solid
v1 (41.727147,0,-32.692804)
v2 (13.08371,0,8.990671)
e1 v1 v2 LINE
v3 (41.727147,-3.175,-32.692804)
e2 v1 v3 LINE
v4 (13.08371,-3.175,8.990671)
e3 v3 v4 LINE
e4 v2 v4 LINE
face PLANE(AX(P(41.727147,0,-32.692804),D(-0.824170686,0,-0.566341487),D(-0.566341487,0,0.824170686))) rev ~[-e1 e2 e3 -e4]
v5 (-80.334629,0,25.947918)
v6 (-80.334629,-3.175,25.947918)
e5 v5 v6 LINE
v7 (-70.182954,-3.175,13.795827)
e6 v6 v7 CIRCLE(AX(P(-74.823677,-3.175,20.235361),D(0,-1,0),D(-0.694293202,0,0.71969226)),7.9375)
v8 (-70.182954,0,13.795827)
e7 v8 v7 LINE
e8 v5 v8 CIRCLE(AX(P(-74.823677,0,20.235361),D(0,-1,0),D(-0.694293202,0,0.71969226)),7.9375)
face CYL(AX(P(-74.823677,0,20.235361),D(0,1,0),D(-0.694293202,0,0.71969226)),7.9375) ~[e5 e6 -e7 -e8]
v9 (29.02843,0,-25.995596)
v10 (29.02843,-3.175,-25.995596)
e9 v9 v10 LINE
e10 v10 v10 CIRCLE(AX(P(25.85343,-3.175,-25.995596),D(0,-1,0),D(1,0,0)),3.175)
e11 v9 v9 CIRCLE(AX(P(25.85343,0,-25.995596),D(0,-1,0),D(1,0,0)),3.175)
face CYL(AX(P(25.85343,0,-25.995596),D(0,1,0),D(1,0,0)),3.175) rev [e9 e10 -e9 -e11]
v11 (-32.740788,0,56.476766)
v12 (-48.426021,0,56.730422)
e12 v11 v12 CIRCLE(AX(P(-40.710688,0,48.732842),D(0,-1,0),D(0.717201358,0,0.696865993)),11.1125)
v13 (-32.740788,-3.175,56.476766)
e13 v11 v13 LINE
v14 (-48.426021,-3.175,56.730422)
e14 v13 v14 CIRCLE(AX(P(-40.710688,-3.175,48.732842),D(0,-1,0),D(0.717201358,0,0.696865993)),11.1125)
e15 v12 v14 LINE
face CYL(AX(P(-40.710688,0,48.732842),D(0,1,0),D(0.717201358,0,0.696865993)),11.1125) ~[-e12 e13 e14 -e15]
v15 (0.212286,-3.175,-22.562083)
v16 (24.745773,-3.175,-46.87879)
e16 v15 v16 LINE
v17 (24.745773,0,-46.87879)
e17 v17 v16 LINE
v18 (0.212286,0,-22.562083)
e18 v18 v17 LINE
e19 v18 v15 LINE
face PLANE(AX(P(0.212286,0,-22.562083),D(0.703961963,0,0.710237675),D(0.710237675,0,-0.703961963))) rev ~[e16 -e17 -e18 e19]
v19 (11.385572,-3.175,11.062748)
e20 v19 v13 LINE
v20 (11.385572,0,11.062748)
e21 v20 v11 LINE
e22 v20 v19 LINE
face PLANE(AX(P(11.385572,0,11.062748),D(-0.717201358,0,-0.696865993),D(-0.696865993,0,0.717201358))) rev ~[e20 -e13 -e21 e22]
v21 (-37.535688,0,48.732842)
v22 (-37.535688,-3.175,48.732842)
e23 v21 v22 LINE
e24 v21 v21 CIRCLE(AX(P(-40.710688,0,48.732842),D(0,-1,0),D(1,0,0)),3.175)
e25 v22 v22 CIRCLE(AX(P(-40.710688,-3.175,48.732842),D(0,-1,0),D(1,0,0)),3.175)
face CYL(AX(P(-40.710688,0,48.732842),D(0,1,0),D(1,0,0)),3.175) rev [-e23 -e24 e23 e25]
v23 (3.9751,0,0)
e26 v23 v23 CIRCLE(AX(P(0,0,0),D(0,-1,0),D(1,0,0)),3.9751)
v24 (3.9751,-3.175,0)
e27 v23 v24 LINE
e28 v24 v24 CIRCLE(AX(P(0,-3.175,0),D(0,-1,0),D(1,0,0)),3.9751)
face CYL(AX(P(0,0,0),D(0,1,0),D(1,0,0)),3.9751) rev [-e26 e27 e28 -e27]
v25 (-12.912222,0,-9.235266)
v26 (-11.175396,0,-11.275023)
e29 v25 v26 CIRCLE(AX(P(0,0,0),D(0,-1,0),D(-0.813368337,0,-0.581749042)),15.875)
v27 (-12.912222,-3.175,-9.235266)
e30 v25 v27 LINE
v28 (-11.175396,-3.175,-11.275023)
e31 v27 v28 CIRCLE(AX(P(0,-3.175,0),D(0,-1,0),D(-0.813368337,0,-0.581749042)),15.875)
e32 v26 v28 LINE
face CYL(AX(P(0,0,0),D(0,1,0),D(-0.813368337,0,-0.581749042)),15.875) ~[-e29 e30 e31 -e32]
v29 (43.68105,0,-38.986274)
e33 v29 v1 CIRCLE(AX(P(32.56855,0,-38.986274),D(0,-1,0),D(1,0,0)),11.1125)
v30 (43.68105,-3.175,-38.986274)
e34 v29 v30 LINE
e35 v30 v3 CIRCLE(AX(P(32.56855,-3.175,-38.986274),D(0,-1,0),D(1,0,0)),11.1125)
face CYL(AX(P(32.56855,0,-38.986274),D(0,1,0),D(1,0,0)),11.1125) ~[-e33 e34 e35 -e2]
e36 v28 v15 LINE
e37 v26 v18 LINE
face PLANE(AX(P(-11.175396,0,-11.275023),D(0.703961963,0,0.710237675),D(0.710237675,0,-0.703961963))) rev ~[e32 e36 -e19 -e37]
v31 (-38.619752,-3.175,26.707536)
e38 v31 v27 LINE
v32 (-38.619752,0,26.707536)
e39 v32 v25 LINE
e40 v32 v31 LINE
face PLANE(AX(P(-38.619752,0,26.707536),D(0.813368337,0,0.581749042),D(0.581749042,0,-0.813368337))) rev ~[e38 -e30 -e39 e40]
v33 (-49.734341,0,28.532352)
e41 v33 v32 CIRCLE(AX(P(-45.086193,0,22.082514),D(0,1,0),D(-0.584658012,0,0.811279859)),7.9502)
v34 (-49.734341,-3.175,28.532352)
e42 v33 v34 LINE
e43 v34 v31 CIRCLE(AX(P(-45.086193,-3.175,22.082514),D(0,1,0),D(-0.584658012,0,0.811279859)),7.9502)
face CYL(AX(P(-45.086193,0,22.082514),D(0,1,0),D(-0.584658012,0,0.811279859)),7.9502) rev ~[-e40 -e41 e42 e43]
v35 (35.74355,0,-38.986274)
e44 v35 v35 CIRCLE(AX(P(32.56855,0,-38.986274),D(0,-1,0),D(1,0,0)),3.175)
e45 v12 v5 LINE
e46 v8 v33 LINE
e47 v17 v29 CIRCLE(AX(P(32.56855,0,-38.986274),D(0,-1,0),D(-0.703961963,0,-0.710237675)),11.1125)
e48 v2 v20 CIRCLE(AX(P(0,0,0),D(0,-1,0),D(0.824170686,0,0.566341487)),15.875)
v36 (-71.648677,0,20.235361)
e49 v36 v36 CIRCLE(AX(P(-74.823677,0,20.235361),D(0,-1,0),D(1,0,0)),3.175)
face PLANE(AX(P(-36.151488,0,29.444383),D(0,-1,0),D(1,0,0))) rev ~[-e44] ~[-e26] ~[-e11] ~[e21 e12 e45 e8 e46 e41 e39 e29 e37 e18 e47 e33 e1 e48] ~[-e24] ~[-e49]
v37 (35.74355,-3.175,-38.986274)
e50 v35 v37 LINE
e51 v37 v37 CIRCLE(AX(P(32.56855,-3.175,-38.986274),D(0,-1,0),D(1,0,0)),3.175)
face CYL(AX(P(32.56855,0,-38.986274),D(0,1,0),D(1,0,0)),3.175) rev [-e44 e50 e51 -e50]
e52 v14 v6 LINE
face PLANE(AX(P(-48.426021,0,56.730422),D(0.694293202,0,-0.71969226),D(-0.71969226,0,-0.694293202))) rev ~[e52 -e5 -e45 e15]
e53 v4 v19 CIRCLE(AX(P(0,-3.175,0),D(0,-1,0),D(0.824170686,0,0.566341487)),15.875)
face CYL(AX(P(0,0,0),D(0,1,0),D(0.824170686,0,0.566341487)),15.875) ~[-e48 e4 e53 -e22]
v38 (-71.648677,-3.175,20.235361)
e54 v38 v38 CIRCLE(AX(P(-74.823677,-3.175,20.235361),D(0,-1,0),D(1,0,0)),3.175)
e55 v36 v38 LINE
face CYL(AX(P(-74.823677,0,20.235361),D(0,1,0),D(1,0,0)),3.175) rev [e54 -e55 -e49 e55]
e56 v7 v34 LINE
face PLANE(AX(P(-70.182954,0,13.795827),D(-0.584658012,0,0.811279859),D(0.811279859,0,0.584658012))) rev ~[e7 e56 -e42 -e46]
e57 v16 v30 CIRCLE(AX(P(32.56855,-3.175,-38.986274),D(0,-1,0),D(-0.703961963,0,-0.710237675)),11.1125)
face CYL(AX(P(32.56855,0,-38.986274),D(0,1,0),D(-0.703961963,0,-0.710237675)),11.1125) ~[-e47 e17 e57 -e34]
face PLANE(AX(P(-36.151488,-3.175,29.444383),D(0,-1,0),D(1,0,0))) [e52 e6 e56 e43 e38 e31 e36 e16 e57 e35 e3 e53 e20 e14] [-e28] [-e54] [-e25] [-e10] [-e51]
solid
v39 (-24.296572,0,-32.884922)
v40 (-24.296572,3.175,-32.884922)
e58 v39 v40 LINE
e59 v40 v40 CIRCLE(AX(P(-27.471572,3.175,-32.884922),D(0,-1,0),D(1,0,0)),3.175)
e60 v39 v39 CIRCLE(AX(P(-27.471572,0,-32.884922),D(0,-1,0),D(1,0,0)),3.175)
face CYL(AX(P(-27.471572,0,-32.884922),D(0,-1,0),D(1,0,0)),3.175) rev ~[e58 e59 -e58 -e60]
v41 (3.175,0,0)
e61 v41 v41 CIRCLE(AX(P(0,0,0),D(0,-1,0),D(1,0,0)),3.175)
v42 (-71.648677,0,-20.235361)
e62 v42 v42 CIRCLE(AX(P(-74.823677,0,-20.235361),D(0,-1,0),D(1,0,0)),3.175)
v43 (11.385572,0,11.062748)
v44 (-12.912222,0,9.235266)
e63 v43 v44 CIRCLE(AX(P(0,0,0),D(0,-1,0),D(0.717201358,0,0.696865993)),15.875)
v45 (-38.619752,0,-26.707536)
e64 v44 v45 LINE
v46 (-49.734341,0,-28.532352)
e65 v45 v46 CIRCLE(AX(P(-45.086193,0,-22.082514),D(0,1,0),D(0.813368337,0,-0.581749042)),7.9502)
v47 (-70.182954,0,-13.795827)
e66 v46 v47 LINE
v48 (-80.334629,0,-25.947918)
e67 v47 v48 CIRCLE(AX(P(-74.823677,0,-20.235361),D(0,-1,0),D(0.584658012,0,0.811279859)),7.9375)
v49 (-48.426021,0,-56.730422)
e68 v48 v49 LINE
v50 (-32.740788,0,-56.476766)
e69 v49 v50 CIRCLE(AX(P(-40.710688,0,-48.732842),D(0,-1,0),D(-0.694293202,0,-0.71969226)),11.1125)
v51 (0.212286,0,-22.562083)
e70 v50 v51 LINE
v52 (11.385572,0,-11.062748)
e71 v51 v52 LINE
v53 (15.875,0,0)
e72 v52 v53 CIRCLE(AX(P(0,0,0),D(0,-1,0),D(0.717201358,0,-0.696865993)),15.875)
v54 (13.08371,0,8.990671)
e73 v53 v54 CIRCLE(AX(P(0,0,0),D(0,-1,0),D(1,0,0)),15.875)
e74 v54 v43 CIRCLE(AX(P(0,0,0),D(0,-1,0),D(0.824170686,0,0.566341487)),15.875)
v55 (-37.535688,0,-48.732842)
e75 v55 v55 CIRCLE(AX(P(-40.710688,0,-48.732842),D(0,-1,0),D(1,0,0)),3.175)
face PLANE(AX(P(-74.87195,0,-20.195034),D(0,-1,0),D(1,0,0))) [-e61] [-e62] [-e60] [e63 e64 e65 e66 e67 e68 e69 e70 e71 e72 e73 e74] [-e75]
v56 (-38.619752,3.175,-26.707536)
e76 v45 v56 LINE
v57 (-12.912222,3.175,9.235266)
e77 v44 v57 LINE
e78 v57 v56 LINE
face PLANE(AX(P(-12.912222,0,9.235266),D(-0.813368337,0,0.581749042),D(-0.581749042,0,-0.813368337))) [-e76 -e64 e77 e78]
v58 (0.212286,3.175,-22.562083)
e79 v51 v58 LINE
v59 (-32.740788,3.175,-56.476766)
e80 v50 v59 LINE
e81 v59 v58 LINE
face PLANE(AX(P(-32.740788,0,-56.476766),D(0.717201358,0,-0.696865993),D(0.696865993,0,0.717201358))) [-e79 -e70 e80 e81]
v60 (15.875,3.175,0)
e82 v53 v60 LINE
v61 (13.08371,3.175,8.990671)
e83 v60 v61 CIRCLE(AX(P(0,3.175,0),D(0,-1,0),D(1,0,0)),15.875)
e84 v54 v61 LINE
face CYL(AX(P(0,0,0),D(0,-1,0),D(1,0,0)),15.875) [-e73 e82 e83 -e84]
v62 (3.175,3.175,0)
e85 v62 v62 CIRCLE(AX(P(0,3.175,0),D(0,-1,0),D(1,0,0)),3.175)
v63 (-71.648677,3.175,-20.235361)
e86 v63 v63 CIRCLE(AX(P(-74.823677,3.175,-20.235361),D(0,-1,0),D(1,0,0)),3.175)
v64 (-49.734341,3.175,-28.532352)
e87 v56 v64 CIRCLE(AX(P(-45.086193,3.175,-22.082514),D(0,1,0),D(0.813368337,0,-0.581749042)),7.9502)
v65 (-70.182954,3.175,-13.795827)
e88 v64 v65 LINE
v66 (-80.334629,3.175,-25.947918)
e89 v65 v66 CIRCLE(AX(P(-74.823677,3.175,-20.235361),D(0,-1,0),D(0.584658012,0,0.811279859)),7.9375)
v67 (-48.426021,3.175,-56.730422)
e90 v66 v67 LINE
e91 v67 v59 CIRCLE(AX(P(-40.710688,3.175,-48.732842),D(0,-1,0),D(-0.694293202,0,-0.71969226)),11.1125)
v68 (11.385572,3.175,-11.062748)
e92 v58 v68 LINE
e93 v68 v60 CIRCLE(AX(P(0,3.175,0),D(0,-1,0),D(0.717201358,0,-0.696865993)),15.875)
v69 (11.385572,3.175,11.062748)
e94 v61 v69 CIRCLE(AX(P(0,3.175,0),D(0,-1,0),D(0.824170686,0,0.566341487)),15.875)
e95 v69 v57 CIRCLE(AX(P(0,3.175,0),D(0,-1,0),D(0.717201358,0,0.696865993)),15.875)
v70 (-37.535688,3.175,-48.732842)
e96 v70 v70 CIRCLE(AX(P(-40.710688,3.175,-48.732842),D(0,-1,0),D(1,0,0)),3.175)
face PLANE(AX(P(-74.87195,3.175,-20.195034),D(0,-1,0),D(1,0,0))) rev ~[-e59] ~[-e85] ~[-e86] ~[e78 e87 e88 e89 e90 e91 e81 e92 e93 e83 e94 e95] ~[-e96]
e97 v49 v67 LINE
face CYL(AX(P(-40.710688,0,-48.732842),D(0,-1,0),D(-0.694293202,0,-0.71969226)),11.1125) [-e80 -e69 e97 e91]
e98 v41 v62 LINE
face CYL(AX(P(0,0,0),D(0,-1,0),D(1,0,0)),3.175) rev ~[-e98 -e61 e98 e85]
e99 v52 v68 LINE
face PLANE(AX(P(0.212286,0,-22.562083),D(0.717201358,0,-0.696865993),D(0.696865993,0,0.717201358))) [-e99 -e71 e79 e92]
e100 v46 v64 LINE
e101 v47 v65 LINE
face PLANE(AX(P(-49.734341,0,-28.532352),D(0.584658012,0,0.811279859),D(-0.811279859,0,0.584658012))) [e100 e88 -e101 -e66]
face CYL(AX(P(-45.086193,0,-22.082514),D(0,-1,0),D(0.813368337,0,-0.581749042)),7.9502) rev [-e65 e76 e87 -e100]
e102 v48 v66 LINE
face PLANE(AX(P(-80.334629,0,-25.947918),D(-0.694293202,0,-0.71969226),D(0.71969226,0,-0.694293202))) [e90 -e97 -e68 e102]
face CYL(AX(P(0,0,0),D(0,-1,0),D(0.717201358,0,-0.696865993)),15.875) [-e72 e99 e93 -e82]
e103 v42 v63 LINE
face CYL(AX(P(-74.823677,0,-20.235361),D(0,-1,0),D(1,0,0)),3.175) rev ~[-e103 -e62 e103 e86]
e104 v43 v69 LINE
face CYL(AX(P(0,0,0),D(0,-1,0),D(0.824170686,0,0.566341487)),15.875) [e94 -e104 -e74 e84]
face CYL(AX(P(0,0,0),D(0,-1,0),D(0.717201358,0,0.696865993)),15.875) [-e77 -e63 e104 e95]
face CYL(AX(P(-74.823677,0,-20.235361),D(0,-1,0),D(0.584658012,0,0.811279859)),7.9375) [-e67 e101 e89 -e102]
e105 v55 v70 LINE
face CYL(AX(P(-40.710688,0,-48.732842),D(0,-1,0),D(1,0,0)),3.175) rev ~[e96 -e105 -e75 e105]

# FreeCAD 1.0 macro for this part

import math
import FreeCAD as App
import Part
import Sketcher
Q = App.Units.Quantity

doc = App.newDocument("Part")
params = doc.addObject("Spreadsheet::Sheet", "Params")
for row, (alias, value) in enumerate([
    ("sketch1_diameter", "0.25 in"),
    ("sketch1_diameter2", "0.313 in"),
    ("sketch1_radius", "0.3125 in"),
    ("sketch1_radius2", "0.313 in"),
    ("sketch1_radius3", "0.625 in"),
    ("pad1_length", "0.125 in"),
    ("sketch2_diameter", "0.25 in"),
    ("sketch2_radius", "0.3125 in"),
    ("sketch2_radius2", "0.4375 in"),
    ("sketch2_radius3", "0.625 in"),
    ("sketch2_radius4", "0.313 in"),
    ("pad2_length", "0.125 in"),
], start=1):
    params.set(f"A{row}", alias)
    params.set(f"B{row}", "=" + value)
    params.setAlias(f"B{row}", alias)

body = doc.addObject("PartDesign::Body", "Body")

# Sketch on XZ plane
sketch1 = body.newObject("Sketcher::SketchObject", "Sketch")
sketch1.AttachmentSupport = (doc.getObject("XZ_Plane"), [""])
sketch1.MapMode = "FlatFace"
sketch1.addGeometry(Part.LineSegment(App.Vector(-48.4, 56.7, 0), App.Vector(-80.3, 25.9, 0)), False)
sketch1.addGeometry(Part.ArcOfCircle(Part.Circle(App.Vector(-74.8, 20.2, 0), App.Vector(0, 0, 1), 7.9), math.radians(134), math.radians(306)), False)
sketch1.addGeometry(Part.LineSegment(App.Vector(-70.2, 13.8, 0), App.Vector(-49.7, 28.5, 0)), False)
sketch1.addGeometry(Part.ArcOfCircle(Part.Circle(App.Vector(-45.1, 22.1, 0), App.Vector(0, 0, 1), 8), math.radians(36), math.radians(126)), False)
sketch1.addGeometry(Part.LineSegment(App.Vector(-38.6, 26.7, 0), App.Vector(-12.9, -9.2, 0)), False)
sketch1.addGeometry(Part.ArcOfCircle(Part.Circle(App.Vector(0, 0, 0), App.Vector(0, 0, 1), 15.9), math.radians(-144.43), math.radians(-134.75)), False)
sketch1.addGeometry(Part.LineSegment(App.Vector(-11.2, -11.3, 0), App.Vector(0.2, -22.6, 0)), False)
sketch1.addGeometry(Part.LineSegment(App.Vector(0.2, -22.6, 0), App.Vector(24.7, -46.9, 0)), False)
sketch1.addGeometry(Part.ArcOfCircle(Part.Circle(App.Vector(32.6, -39, 0), App.Vector(0, 0, 1), 11.1), math.radians(-135), math.radians(0)), False)
sketch1.addGeometry(Part.ArcOfCircle(Part.Circle(App.Vector(32.6, -39, 0), App.Vector(0, 0, 1), 11.1), math.radians(0), math.radians(34)), False)
sketch1.addGeometry(Part.LineSegment(App.Vector(41.7, -32.7, 0), App.Vector(13.1, 9, 0)), False)
sketch1.addGeometry(Part.ArcOfCircle(Part.Circle(App.Vector(0, 0, 0), App.Vector(0, 0, 1), 15.9), math.radians(34.5), math.radians(44.18)), False)
sketch1.addGeometry(Part.LineSegment(App.Vector(11.4, 11.1, 0), App.Vector(-32.7, 56.5, 0)), False)
sketch1.addGeometry(Part.ArcOfCircle(Part.Circle(App.Vector(-40.7, 48.7, 0), App.Vector(0, 0, 1), 11.1), math.radians(44), math.radians(134)), False)
sketch1.addGeometry(Part.Circle(App.Vector(32.6, -39, 0), App.Vector(0, 0, 1), 3.2), False)
sketch1.addGeometry(Part.Circle(App.Vector(25.9, -26, 0), App.Vector(0, 0, 1), 3.2), False)
sketch1.addGeometry(Part.Circle(App.Vector(0, 0, 0), App.Vector(0, 0, 1), 4), False)
sketch1.addGeometry(Part.Circle(App.Vector(-74.8, 20.2, 0), App.Vector(0, 0, 1), 3.2), False)
sketch1.addGeometry(Part.Circle(App.Vector(-40.7, 48.7, 0), App.Vector(0, 0, 1), 3.2), False)
sketch1.addConstraint(Sketcher.Constraint("Tangent", 0, 2, 1, 1))
sketch1.addConstraint(Sketcher.Constraint("Tangent", 1, 2, 2, 1))
sketch1.addConstraint(Sketcher.Constraint("Tangent", 2, 2, 3, 2))
sketch1.addConstraint(Sketcher.Constraint("Tangent", 3, 1, 4, 1))
sketch1.addConstraint(Sketcher.Constraint("Tangent", 4, 2, 5, 1))
sketch1.addConstraint(Sketcher.Constraint("Tangent", 5, 2, 6, 1))
sketch1.addConstraint(Sketcher.Constraint("Coincident", 6, 2, 7, 1))
sketch1.addConstraint(Sketcher.Constraint("Tangent", 7, 2, 8, 1))
sketch1.addConstraint(Sketcher.Constraint("Tangent", 8, 2, 9, 1))
sketch1.addConstraint(Sketcher.Constraint("Tangent", 9, 2, 10, 1))
sketch1.addConstraint(Sketcher.Constraint("Tangent", 10, 2, 11, 1))
sketch1.addConstraint(Sketcher.Constraint("Tangent", 11, 2, 12, 1))
sketch1.addConstraint(Sketcher.Constraint("Tangent", 12, 2, 13, 1))
sketch1.addConstraint(Sketcher.Constraint("Tangent", 13, 2, 0, 1))
sketch1.addConstraint(Sketcher.Constraint("Coincident", 5, 3, -1, 1))
sketch1.addConstraint(Sketcher.Constraint("Coincident", 11, 3, -1, 1))
sketch1.addConstraint(Sketcher.Constraint("Coincident", 16, 3, -1, 1))
sketch1.addConstraint(Sketcher.Constraint("Coincident", 14, 3, 8, 3))
sketch1.addConstraint(Sketcher.Constraint("Coincident", 17, 3, 1, 3))
sketch1.addConstraint(Sketcher.Constraint("Coincident", 18, 3, 13, 3))
sketch1.addConstraint(Sketcher.Constraint("Equal", 8, 9))
sketch1.addConstraint(Sketcher.Constraint("Equal", 5, 11))
sketch1.addConstraint(Sketcher.Constraint("Equal", 9, 13))
sketch1.addConstraint(Sketcher.Constraint("Equal", 14, 15))
sketch1.addConstraint(Sketcher.Constraint("Equal", 15, 17))
sketch1.addConstraint(Sketcher.Constraint("Equal", 17, 18))
sketch1.addConstraint(Sketcher.Constraint("Parallel", 6, 7))
sketch1.addConstraint(Sketcher.Constraint("Horizontal", 14, 3, 8, 2))
sketch1.addConstraint(Sketcher.Constraint("Diameter", 14, Q("0.25 in")))
sketch1.addConstraint(Sketcher.Constraint("Diameter", 16, Q("0.313 in")))
sketch1.addConstraint(Sketcher.Constraint("Radius", 1, Q("0.3125 in")))
sketch1.addConstraint(Sketcher.Constraint("Radius", 3, Q("0.313 in")))
sketch1.addConstraint(Sketcher.Constraint("Radius", 5, Q("0.625 in")))
sketch1.addConstraint(Sketcher.Constraint("Radius", 8, Q("0.4375 in")))
sketch1.addConstraint(Sketcher.Constraint("DistanceY", 4, 2, 3, 1, 35.942802))
sketch1.addConstraint(Sketcher.Constraint("DistanceX", 13, 3, 12, 2, 7.9699))
sketch1.addConstraint(Sketcher.Constraint("Distance", 6, 16.033622))
sketch1.addConstraint(Sketcher.Constraint("DistanceY", -1, 1, 1, 3, 20.235361))
sketch1.addConstraint(Sketcher.Constraint("DistanceX", -1, 1, 8, 3, 32.56855))
sketch1.addConstraint(Sketcher.Constraint("DistanceX", -1, 1, 15, 3, 25.85343))
sketch1.addConstraint(Sketcher.Constraint("DistanceX", 0, 2, -1, 1, 80.334629))
sketch1.addConstraint(Sketcher.Constraint("DistanceY", -1, 1, 0, 2, 25.947918))
sketch1.addConstraint(Sketcher.Constraint("DistanceX", 2, 2, -1, 1, 49.734341))
sketch1.addConstraint(Sketcher.Constraint("DistanceY", 7, 2, -1, 1, 46.87879))
sketch1.addConstraint(Sketcher.Constraint("DistanceY", 15, 3, 4, 2, 16.76033))
sketch1.setExpression("Constraints[28]", "Params.sketch1_diameter")
sketch1.setExpression("Constraints[29]", "Params.sketch1_diameter2")
sketch1.setExpression("Constraints[30]", "Params.sketch1_radius")
sketch1.setExpression("Constraints[31]", "Params.sketch1_radius2")
sketch1.setExpression("Constraints[32]", "Params.sketch1_radius3")
pad1 = body.newObject("PartDesign::Pad", "Pad")
pad1.Profile = sketch1
pad1.setExpression("Length", "Params.pad1_length")
body2 = doc.addObject("PartDesign::Body", "Body001")

# Sketch on XZ plane
sketch2 = body2.newObject("Sketcher::SketchObject", "Sketch001")
sketch2.AttachmentSupport = (doc.getObject("XZ_Plane001"), [""])
sketch2.MapMode = "FlatFace"
sketch2.addGeometry(Part.ArcOfCircle(Part.Circle(App.Vector(-74.8, -20.2, 0), App.Vector(0, 0, 1), 7.9), math.radians(54), math.radians(226)), False)
sketch2.addGeometry(Part.LineSegment(App.Vector(-80.3, -25.9, 0), App.Vector(-48.4, -56.7, 0)), False)
sketch2.addGeometry(Part.ArcOfCircle(Part.Circle(App.Vector(-40.7, -48.7, 0), App.Vector(0, 0, 1), 11.1), math.radians(-134), math.radians(-44)), False)
sketch2.addGeometry(Part.LineSegment(App.Vector(-32.7, -56.5, 0), App.Vector(0.2, -22.6, 0)), False)
sketch2.addGeometry(Part.LineSegment(App.Vector(0.2, -22.6, 0), App.Vector(11.4, -11.1, 0)), False)
sketch2.addGeometry(Part.ArcOfCircle(Part.Circle(App.Vector(0, 0, 0), App.Vector(0, 0, 1), 15.9), math.radians(-44), math.radians(0)), False)
sketch2.addGeometry(Part.ArcOfCircle(Part.Circle(App.Vector(0, 0, 0), App.Vector(0, 0, 1), 15.9), math.radians(0), math.radians(34)), False)
sketch2.addGeometry(Part.ArcOfCircle(Part.Circle(App.Vector(0, 0, 0), App.Vector(0, 0, 1), 15.9), math.radians(34.5), math.radians(44.18)), False)
sketch2.addGeometry(Part.ArcOfCircle(Part.Circle(App.Vector(0, 0, 0), App.Vector(0, 0, 1), 15.9), math.radians(44), math.radians(144)), False)
sketch2.addGeometry(Part.LineSegment(App.Vector(-12.9, 9.2, 0), App.Vector(-38.6, -26.7, 0)), False)
sketch2.addGeometry(Part.ArcOfCircle(Part.Circle(App.Vector(-45.1, -22.1, 0), App.Vector(0, 0, 1), 8), math.radians(-126), math.radians(-36)), False)
sketch2.addGeometry(Part.LineSegment(App.Vector(-49.7, -28.5, 0), App.Vector(-70.2, -13.8, 0)), False)
sketch2.addGeometry(Part.Circle(App.Vector(-40.7, -48.7, 0), App.Vector(0, 0, 1), 3.2), False)
sketch2.addGeometry(Part.Circle(App.Vector(-27.5, -32.9, 0), App.Vector(0, 0, 1), 3.2), False)
sketch2.addGeometry(Part.Circle(App.Vector(-74.8, -20.2, 0), App.Vector(0, 0, 1), 3.2), False)
sketch2.addGeometry(Part.Circle(App.Vector(0, 0, 0), App.Vector(0, 0, 1), 3.2), False)
sketch2.addConstraint(Sketcher.Constraint("Tangent", 0, 2, 1, 1))
sketch2.addConstraint(Sketcher.Constraint("Tangent", 1, 2, 2, 1))
sketch2.addConstraint(Sketcher.Constraint("Tangent", 2, 2, 3, 1))
sketch2.addConstraint(Sketcher.Constraint("Coincident", 3, 2, 4, 1))
sketch2.addConstraint(Sketcher.Constraint("Tangent", 4, 2, 5, 1))
sketch2.addConstraint(Sketcher.Constraint("Tangent", 5, 2, 6, 1))
sketch2.addConstraint(Sketcher.Constraint("Tangent", 6, 2, 7, 1))
sketch2.addConstraint(Sketcher.Constraint("Tangent", 7, 2, 8, 1))
sketch2.addConstraint(Sketcher.Constraint("Tangent", 8, 2, 9, 1))
sketch2.addConstraint(Sketcher.Constraint("Tangent", 9, 2, 10, 2))
sketch2.addConstraint(Sketcher.Constraint("Tangent", 10, 1, 11, 1))
sketch2.addConstraint(Sketcher.Constraint("Tangent", 11, 2, 0, 1))
sketch2.addConstraint(Sketcher.Constraint("Coincident", 5, 3, -1, 1))
sketch2.addConstraint(Sketcher.Constraint("Coincident", 7, 3, -1, 1))
sketch2.addConstraint(Sketcher.Constraint("Coincident", 15, 3, -1, 1))
sketch2.addConstraint(Sketcher.Constraint("Coincident", 12, 3, 2, 3))
sketch2.addConstraint(Sketcher.Constraint("Coincident", 14, 3, 0, 3))
sketch2.addConstraint(Sketcher.Constraint("Equal", 7, 8))
sketch2.addConstraint(Sketcher.Constraint("Equal", 12, 13))
sketch2.addConstraint(Sketcher.Constraint("Equal", 13, 14))
sketch2.addConstraint(Sketcher.Constraint("Equal", 14, 15))
sketch2.addConstraint(Sketcher.Constraint("PointOnObject", 5, 2, -1))
sketch2.addConstraint(Sketcher.Constraint("Parallel", 3, 4))
sketch2.addConstraint(Sketcher.Constraint("Vertical", 4, 2, 7, 2))
sketch2.addConstraint(Sketcher.Constraint("Diameter", 12, Q("0.25 in")))
sketch2.addConstraint(Sketcher.Constraint("Radius", 0, Q("0.3125 in")))
sketch2.addConstraint(Sketcher.Constraint("Radius", 2, Q("0.4375 in")))
sketch2.addConstraint(Sketcher.Constraint("Radius", 5, Q("0.625 in")))
sketch2.addConstraint(Sketcher.Constraint("Radius", 10, Q("0.313 in")))
sketch2.addConstraint(Sketcher.Constraint("DistanceY", 1, 2, 13, 3, 23.845501))
sketch2.addConstraint(Sketcher.Constraint("DistanceX", 2, 3, 2, 2, 7.9699))
sketch2.addConstraint(Sketcher.Constraint("Distance", 4, 16.033622))
sketch2.addConstraint(Sketcher.Constraint("DistanceY", 0, 3, -1, 1, 20.235361))
sketch2.addConstraint(Sketcher.Constraint("DistanceY", 13, 3, -1, 1, 32.884922))
sketch2.addConstraint(Sketcher.Constraint("DistanceX", 0, 2, -1, 1, 80.334629))
sketch2.addConstraint(Sketcher.Constraint("DistanceX", -1, 1, 6, 2, 13.08371))
sketch2.addConstraint(Sketcher.Constraint("DistanceX", 9, 2, -1, 1, 38.619752))
sketch2.addConstraint(Sketcher.Constraint("DistanceX", 10, 1, -1, 1, 49.734341))
sketch2.addConstraint(Sketcher.Constraint("DistanceX", 10, 3, 13, 3, 17.614621))
sketch2.setExpression("Constraints[24]", "Params.sketch2_diameter")
sketch2.setExpression("Constraints[25]", "Params.sketch2_radius")
sketch2.setExpression("Constraints[26]", "Params.sketch2_radius2")
sketch2.setExpression("Constraints[27]", "Params.sketch2_radius3")
sketch2.setExpression("Constraints[28]", "Params.sketch2_radius4")
pad2 = body2.newObject("PartDesign::Pad", "Pad001")
pad2.Profile = sketch2
pad2.setExpression("Length", "Params.pad2_length")
pad2.Reversed = True

doc.recompute()
